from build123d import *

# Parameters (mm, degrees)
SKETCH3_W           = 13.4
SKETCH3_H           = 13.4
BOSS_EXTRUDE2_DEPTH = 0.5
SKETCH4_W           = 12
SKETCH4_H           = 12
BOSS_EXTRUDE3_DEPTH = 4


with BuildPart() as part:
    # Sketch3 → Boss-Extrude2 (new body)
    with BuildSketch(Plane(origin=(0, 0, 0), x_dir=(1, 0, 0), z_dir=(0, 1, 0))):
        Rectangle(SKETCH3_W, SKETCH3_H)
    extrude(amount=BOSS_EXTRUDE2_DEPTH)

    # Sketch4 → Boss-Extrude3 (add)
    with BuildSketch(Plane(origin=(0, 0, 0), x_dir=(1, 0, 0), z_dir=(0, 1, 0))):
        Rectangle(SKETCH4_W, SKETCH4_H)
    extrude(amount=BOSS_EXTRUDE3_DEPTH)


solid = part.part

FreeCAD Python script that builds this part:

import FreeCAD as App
import Part
import Sketcher

V = App.Vector
Q = App.Units.Quantity

doc = App.newDocument("Part")
body = doc.addObject("PartDesign::Body", "Body")

# Sketch on XZ plane
sketch1 = body.newObject("Sketcher::SketchObject", "Sketch")
sketch1.AttachmentSupport = (doc.getObject("XZ_Plane"), [""])
sketch1.MapMode = "FlatFace"
sketch1.addGeometry(Part.LineSegment(V(-7, -7, 0), V(-7, 7, 0)), False)
sketch1.addGeometry(Part.LineSegment(V(-7, 7, 0), V(7, 7, 0)), False)
sketch1.addGeometry(Part.LineSegment(V(7, 7, 0), V(7, -7, 0)), False)
sketch1.addGeometry(Part.LineSegment(V(7, -7, 0), V(-7, -7, 0)), False)
sketch1.addConstraint(Sketcher.Constraint("Coincident", 0, 2, 1, 1))
sketch1.addConstraint(Sketcher.Constraint("Coincident", 1, 2, 2, 1))
sketch1.addConstraint(Sketcher.Constraint("Coincident", 2, 2, 3, 1))
sketch1.addConstraint(Sketcher.Constraint("Coincident", 3, 2, 0, 1))
sketch1.addConstraint(Sketcher.Constraint("Vertical", 0))
sketch1.addConstraint(Sketcher.Constraint("Horizontal", 1))
sketch1.addConstraint(Sketcher.Constraint("Vertical", 2))
sketch1.addConstraint(Sketcher.Constraint("Horizontal", 3))
sketch1.addConstraint(Sketcher.Constraint("Symmetric", 0, 2, 2, 2, -1, 1))
sketch1.addConstraint(Sketcher.Constraint("Equal", 3, 0))
sketch1.addConstraint(Sketcher.Constraint("DistanceX", 1, 1, 1, 2, Q("13.4 mm")))
pad1 = body.newObject("PartDesign::Pad", "Pad")
pad1.Profile = sketch1
pad1.Length = 0.5
pad1.Reversed = True

# Sketch on XZ plane
sketch2 = body.newObject("Sketcher::SketchObject", "Sketch001")
sketch2.AttachmentSupport = (doc.getObject("XZ_Plane"), [""])
sketch2.MapMode = "FlatFace"
sketch2.addGeometry(Part.LineSegment(V(-6, -6, 0), V(-6, 6, 0)), False)
sketch2.addGeometry(Part.LineSegment(V(-6, 6, 0), V(6, 6, 0)), False)
sketch2.addGeometry(Part.LineSegment(V(6, 6, 0), V(6, -6, 0)), False)
sketch2.addGeometry(Part.LineSegment(V(6, -6, 0), V(-6, -6, 0)), False)
sketch2.addConstraint(Sketcher.Constraint("Coincident", 0, 2, 1, 1))
sketch2.addConstraint(Sketcher.Constraint("Coincident", 1, 2, 2, 1))
sketch2.addConstraint(Sketcher.Constraint("Coincident", 2, 2, 3, 1))
sketch2.addConstraint(Sketcher.Constraint("Coincident", 3, 2, 0, 1))
sketch2.addConstraint(Sketcher.Constraint("Vertical", 0))
sketch2.addConstraint(Sketcher.Constraint("Horizontal", 1))
sketch2.addConstraint(Sketcher.Constraint("Vertical", 2))
sketch2.addConstraint(Sketcher.Constraint("Horizontal", 3))
sketch2.addConstraint(Sketcher.Constraint("Symmetric", 0, 2, 2, 2, -1, 1))
sketch2.addConstraint(Sketcher.Constraint("Equal", 3, 0))
sketch2.addConstraint(Sketcher.Constraint("DistanceX", 1, 1, 1, 2, Q("12 mm")))
pad2 = body.newObject("PartDesign::Pad", "Pad001")
pad2.Profile = sketch2
pad2.Length = 4
pad2.Reversed = True

doc.recompute()
